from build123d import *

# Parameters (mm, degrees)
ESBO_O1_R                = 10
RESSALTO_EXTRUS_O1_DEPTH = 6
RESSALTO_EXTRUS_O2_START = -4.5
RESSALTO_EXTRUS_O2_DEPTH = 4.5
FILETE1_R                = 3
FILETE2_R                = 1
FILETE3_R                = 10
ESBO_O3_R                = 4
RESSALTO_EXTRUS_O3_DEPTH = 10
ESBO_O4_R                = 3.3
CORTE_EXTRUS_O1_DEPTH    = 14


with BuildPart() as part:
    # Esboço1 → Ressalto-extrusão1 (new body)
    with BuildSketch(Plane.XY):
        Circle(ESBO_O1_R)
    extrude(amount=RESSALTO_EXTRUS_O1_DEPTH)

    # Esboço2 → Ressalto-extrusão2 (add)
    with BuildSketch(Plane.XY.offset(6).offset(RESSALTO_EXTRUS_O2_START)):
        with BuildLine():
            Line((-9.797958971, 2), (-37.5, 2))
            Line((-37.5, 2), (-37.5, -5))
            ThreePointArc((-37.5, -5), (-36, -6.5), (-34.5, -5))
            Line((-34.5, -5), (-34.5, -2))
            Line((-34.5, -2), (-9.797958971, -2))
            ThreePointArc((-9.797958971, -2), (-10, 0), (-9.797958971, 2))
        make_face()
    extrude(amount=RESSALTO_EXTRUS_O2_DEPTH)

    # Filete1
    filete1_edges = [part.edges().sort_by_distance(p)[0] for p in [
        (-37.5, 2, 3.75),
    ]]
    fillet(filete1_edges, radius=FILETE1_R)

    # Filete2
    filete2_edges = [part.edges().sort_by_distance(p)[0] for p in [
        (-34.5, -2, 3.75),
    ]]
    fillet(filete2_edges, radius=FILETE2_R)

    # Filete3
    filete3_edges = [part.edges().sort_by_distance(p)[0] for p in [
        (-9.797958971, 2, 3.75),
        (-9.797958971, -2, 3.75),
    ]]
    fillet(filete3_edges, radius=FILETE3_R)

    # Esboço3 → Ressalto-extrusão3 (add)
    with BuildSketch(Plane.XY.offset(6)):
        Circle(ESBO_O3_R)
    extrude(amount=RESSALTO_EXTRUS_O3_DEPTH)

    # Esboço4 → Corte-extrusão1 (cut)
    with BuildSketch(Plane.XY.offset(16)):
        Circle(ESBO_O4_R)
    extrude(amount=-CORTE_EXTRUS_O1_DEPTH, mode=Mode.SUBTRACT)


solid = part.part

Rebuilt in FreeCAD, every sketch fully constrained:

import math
import FreeCAD as App
import Part
import Sketcher


def edges_at(feature, points):
    """Names of the edges that pass closest to the given points."""
    edges = feature.Shape.Edges
    near = lambda p: min(range(len(edges)), key=lambda i: edges[i].distToShape(Part.Vertex(*p))[0])
    return sorted({f"Edge{near(p) + 1}" for p in points})

doc = App.newDocument("Part")
body = doc.addObject("PartDesign::Body", "Body")

sketch1 = doc.addObject("Sketcher::SketchObject", "Sketch")
body.addObject(sketch1)
sketch1.AttachmentSupport = (doc.XY_Plane, [""])
sketch1.MapMode = "FlatFace"
sketch1.addGeometry(Part.Circle(App.Vector(0, 0, 0), App.Vector(0, 0, 1), 10), False)
sketch1.addConstraint(Sketcher.Constraint("Coincident", 0, 3, -1, 1))
sketch1.addConstraint(Sketcher.Constraint("Diameter", 0, 20.0))
pad1 = doc.addObject("PartDesign::Pad", "Pad")
body.addObject(pad1)
pad1.Profile = sketch1
pad1.Length = 6

sketch2 = doc.addObject("Sketcher::SketchObject", "Sketch001")
body.addObject(sketch2)
sketch2.AttachmentSupport = (doc.XY_Plane, [""])
sketch2.MapMode = "FlatFace"
sketch2.AttachmentOffset = App.Placement(App.Vector(0, 0, 1.5), App.Rotation())
sketch2.addGeometry(Part.LineSegment(App.Vector(-9.797959, 2, 0), App.Vector(-37.5, 2, 0)), False)
sketch2.addGeometry(Part.LineSegment(App.Vector(-37.5, 2, 0), App.Vector(-37.5, -5, 0)), False)
sketch2.addGeometry(Part.ArcOfCircle(Part.Circle(App.Vector(-36, -5, 0), App.Vector(0, 0, 1), 1.5), math.radians(180), math.radians(360)), False)
sketch2.addGeometry(Part.LineSegment(App.Vector(-34.5, -5, 0), App.Vector(-34.5, -2, 0)), False)
sketch2.addGeometry(Part.LineSegment(App.Vector(-34.5, -2, 0), App.Vector(-9.797959, -2, 0)), False)
sketch2.addGeometry(Part.ArcOfCircle(Part.Circle(App.Vector(0, 0, 0), App.Vector(0, 0, 1), 10), math.radians(168.463041), math.radians(191.536959)), False)
sketch2.addConstraint(Sketcher.Constraint("Coincident", 0, 2, 1, 1))
sketch2.addConstraint(Sketcher.Constraint("Tangent", 1, 2, 2, 1))
sketch2.addConstraint(Sketcher.Constraint("Tangent", 2, 2, 3, 1))
sketch2.addConstraint(Sketcher.Constraint("Coincident", 3, 2, 4, 1))
sketch2.addConstraint(Sketcher.Constraint("Coincident", 4, 2, 5, 2))
sketch2.addConstraint(Sketcher.Constraint("Coincident", 5, 1, 0, 1))
sketch2.addConstraint(Sketcher.Constraint("Horizontal", 0))
sketch2.addConstraint(Sketcher.Constraint("Vertical", 1))
sketch2.addConstraint(Sketcher.Constraint("Vertical", 3))
sketch2.addConstraint(Sketcher.Constraint("Horizontal", 4))
sketch2.addConstraint(Sketcher.Constraint("Coincident", 5, 3, -1, 1))
sketch2.addConstraint(Sketcher.Constraint("Vertical", 4, 2, 5, 1))
sketch2.addConstraint(Sketcher.Constraint("Radius", 5, 10.0))
sketch2.addConstraint(Sketcher.Constraint("Radius", 2, 1.5))
sketch2.addConstraint(Sketcher.Constraint("DistanceY", 1, 2, 1, 1, 7.0))
sketch2.addConstraint(Sketcher.Constraint("DistanceY", 3, 1, 3, 2, 3.0))
sketch2.addConstraint(Sketcher.Constraint("DistanceX", 2, 3, -1, 1, 36.0))
pad2 = doc.addObject("PartDesign::Pad", "Pad001")
body.addObject(pad2)
pad2.Profile = sketch2
pad2.Length = 4.5
doc.recompute()

fillet = doc.addObject("PartDesign::Fillet", "Fillet")
body.addObject(fillet)
fillet.Base = (pad2, edges_at(pad2, [(-37.5, 2, 3.75)]))
fillet.Radius = 3
doc.recompute()

fillet2 = doc.addObject("PartDesign::Fillet", "Fillet001")
body.addObject(fillet2)
fillet2.Base = (fillet, edges_at(fillet, [(-34.5, -2, 3.75)]))
fillet2.Radius = 1
doc.recompute()

fillet3 = doc.addObject("PartDesign::Fillet", "Fillet002")
body.addObject(fillet3)
fillet3.Base = (fillet2, edges_at(fillet2, [(-9.798, 2, 3.75), (-9.798, -2, 3.75)]))
fillet3.Radius = 10

sketch3 = doc.addObject("Sketcher::SketchObject", "Sketch002")
body.addObject(sketch3)
sketch3.AttachmentSupport = (doc.XY_Plane, [""])
sketch3.MapMode = "FlatFace"
sketch3.AttachmentOffset = App.Placement(App.Vector(0, 0, 6), App.Rotation())
sketch3.addGeometry(Part.Circle(App.Vector(0, 0, 0), App.Vector(0, 0, 1), 4), False)
sketch3.addConstraint(Sketcher.Constraint("Coincident", 0, 3, -1, 1))
sketch3.addConstraint(Sketcher.Constraint("Diameter", 0, 8.0))
pad3 = doc.addObject("PartDesign::Pad", "Pad002")
body.addObject(pad3)
pad3.Profile = sketch3
pad3.Length = 10

sketch4 = doc.addObject("Sketcher::SketchObject", "Sketch003")
body.addObject(sketch4)
sketch4.AttachmentSupport = (doc.XY_Plane, [""])
sketch4.MapMode = "FlatFace"
sketch4.AttachmentOffset = App.Placement(App.Vector(0, 0, 16), App.Rotation())
sketch4.addGeometry(Part.Circle(App.Vector(0, 0, 0), App.Vector(0, 0, 1), 3.3), False)
sketch4.addConstraint(Sketcher.Constraint("Coincident", 0, 3, -1, 1))
sketch4.addConstraint(Sketcher.Constraint("Diameter", 0, 6.6))
pocket1 = doc.addObject("PartDesign::Pocket", "Pocket")
body.addObject(pocket1)
pocket1.Profile = sketch4
pocket1.Length = 14

doc.recompute()
